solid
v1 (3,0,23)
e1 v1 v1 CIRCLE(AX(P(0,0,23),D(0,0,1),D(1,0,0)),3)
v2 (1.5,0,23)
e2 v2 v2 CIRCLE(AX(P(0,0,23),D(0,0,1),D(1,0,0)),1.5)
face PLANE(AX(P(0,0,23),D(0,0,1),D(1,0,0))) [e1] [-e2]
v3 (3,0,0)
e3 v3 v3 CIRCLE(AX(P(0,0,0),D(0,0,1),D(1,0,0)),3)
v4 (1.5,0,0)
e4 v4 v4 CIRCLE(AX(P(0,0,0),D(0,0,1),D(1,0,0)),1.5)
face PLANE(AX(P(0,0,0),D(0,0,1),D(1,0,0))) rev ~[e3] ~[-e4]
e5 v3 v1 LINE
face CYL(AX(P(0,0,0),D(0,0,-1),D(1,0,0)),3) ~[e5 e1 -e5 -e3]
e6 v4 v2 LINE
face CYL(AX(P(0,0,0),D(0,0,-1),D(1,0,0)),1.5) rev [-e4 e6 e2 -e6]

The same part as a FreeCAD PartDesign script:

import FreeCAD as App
import Part
import Sketcher
Q = App.Units.Quantity

doc = App.newDocument("Part")
body = doc.addObject("PartDesign::Body", "Body")

# Sketch on XY plane
sketch1 = body.newObject("Sketcher::SketchObject", "Sketch")
sketch1.AttachmentSupport = (doc.getObject("XY_Plane"), [""])
sketch1.MapMode = "FlatFace"
sketch1.addGeometry([
    Part.Circle(App.Vector(0, 0, 0), App.Vector(0, 0, 1), 3),
    Part.Circle(App.Vector(0, 0, 0), App.Vector(0, 0, 1), 1.5),
], False)
sketch1.addConstraint([
    Sketcher.Constraint("Coincident", 0, 3, -1, 1),
    Sketcher.Constraint("Coincident", 1, 3, -1, 1),
    Sketcher.Constraint("Diameter", 0, Q("6 mm")),
    Sketcher.Constraint("Diameter", 1, Q("3 mm")),
])
pad1 = body.newObject("PartDesign::Pad", "Pad")
pad1.Profile = sketch1
pad1.Length = 23

doc.recompute()
